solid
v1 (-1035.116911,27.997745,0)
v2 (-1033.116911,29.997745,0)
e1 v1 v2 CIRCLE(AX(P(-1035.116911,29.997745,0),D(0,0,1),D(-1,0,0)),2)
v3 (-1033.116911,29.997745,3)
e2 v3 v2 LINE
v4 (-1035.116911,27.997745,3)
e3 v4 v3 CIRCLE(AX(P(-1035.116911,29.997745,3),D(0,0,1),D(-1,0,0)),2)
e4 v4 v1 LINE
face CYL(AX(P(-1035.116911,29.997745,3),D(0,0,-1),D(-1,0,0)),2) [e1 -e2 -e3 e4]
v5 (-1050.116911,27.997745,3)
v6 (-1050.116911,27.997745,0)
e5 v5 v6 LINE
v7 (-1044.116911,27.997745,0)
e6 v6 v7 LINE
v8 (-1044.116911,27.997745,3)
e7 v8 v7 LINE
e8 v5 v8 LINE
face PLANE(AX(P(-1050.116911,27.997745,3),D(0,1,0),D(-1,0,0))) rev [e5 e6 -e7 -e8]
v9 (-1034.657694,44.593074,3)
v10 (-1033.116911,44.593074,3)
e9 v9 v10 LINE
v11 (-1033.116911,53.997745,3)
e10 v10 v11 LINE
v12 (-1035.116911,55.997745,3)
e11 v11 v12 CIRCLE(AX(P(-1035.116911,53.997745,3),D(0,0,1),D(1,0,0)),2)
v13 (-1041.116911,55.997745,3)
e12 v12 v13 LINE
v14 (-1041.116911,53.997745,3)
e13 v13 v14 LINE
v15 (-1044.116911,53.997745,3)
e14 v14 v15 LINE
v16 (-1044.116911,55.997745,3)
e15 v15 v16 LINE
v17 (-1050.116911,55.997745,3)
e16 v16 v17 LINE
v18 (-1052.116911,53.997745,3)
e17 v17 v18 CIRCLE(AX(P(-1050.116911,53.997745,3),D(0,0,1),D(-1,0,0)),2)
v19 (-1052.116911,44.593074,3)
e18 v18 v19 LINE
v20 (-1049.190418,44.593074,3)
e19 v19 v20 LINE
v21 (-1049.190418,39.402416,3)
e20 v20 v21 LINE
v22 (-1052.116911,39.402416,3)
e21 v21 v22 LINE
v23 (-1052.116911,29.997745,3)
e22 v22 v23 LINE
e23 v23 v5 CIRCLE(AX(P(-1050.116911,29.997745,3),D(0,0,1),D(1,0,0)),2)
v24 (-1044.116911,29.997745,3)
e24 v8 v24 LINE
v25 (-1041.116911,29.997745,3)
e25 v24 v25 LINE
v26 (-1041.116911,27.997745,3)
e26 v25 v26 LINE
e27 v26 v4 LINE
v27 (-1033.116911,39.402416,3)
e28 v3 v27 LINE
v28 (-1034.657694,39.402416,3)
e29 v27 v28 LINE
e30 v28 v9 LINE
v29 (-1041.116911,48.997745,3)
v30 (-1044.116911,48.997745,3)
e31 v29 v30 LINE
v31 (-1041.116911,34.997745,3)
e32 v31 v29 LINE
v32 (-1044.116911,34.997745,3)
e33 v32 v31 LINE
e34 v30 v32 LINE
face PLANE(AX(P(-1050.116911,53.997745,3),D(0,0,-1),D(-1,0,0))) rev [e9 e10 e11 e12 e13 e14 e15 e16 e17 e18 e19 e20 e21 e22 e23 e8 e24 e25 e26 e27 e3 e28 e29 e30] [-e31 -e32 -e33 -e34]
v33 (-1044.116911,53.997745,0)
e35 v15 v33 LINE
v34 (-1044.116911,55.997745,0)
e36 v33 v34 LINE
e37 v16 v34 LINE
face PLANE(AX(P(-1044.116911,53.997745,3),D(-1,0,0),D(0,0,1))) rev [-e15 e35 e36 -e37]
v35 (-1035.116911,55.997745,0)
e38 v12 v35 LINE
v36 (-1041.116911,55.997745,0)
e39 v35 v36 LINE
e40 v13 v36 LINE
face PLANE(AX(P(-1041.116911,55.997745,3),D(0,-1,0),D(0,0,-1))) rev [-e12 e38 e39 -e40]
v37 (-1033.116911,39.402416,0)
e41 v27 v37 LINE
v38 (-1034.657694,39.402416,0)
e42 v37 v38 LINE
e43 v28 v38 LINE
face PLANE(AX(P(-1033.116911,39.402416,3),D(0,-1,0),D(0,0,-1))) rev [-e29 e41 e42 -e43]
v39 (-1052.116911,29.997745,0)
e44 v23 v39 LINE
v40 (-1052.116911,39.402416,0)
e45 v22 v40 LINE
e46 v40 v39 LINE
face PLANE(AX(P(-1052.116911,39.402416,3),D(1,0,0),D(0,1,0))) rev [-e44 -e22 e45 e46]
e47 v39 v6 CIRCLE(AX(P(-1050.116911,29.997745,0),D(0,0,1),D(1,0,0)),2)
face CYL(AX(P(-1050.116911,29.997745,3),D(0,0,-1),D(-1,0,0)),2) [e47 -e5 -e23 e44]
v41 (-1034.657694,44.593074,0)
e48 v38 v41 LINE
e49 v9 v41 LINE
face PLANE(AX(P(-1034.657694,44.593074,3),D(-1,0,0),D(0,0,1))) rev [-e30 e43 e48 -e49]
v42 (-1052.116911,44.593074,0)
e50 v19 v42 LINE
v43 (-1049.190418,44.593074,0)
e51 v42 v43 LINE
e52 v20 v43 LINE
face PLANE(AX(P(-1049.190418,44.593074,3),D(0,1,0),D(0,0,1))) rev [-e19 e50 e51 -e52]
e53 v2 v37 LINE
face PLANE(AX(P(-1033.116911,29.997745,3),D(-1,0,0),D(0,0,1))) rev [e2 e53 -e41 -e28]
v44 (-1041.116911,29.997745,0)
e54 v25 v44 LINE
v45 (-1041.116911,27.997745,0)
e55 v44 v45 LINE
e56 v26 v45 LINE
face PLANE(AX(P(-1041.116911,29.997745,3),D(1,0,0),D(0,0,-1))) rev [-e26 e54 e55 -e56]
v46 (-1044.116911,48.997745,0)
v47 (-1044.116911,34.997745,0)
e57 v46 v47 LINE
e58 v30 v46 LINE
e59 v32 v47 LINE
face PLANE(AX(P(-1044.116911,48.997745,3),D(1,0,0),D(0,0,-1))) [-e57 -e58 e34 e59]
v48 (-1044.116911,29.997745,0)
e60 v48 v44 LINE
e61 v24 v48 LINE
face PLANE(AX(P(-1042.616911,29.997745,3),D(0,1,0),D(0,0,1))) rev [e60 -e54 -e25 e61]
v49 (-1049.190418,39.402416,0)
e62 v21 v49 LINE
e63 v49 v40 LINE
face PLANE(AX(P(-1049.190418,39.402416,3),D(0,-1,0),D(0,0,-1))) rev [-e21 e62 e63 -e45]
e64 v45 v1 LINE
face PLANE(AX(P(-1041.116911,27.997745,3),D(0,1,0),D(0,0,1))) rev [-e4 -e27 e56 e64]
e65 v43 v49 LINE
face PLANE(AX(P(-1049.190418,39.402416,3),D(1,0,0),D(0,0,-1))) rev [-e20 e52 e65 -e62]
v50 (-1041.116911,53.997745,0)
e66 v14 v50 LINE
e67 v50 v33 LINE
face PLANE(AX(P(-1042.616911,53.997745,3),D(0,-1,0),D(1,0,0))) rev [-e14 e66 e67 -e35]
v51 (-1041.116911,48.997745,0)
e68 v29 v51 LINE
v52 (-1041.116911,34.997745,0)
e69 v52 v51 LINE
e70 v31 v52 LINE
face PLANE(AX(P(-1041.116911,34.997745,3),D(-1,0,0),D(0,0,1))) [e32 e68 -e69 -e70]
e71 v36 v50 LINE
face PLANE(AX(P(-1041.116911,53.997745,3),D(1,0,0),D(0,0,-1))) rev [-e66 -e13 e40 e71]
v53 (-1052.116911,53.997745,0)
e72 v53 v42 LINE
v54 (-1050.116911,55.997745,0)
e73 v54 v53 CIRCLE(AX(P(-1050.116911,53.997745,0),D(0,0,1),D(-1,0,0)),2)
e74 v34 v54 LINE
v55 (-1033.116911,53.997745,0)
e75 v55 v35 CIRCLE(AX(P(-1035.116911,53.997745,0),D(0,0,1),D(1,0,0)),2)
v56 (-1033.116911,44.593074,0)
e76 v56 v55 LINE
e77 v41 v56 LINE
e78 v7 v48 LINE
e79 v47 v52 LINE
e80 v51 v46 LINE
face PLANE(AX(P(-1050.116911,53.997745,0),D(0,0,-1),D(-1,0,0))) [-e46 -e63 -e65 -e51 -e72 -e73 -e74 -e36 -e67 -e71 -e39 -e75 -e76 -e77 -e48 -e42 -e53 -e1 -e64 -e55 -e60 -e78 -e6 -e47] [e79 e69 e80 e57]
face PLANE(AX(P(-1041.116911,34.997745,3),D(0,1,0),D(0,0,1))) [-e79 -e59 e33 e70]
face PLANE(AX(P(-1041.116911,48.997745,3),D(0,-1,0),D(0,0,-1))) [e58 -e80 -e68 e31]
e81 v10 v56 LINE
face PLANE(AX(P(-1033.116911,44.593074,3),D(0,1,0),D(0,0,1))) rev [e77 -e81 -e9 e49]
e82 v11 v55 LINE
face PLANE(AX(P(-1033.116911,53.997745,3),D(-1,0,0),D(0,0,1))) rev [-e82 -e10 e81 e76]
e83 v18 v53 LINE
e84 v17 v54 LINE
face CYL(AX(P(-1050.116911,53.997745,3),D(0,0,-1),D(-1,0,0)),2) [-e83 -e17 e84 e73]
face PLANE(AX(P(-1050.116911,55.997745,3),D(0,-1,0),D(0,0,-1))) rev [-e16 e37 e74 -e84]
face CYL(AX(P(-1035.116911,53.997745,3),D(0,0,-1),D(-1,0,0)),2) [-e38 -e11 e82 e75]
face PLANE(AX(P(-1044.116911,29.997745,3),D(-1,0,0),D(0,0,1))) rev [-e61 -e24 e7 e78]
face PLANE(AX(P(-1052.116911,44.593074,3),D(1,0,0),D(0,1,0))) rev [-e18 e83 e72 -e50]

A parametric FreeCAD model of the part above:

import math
import FreeCAD as App
import Part
import Sketcher

doc = App.newDocument("Part")
params = doc.addObject("Spreadsheet::Sheet", "Params")
for row, (alias, value) in enumerate([
    ("sketch1_radius", "2 mm"),
    ("sketch1_width", "6 mm"),
    ("sketch1_width2", "3 mm"),
    ("sketch1_height", "14 mm"),
    ("pad1_length", "3 mm"),
], start=1):
    params.set(f"A{row}", alias)
    params.set(f"B{row}", "=" + value)
    params.setAlias(f"B{row}", alias)

body = doc.addObject("PartDesign::Body", "Body")

sketch1 = doc.addObject("Sketcher::SketchObject", "Sketch")
body.addObject(sketch1)
sketch1.AttachmentSupport = (doc.XY_Plane, [""])
sketch1.MapMode = "FlatFace"
sketch1.addGeometry([
    Part.LineSegment(App.Vector(-1033.1, 44.6, 0), App.Vector(-1033.1, 54, 0)),
    Part.ArcOfCircle(Part.Circle(App.Vector(-1035.1, 54, 0), App.Vector(0, 0, 1), 2), math.radians(0), math.radians(90)),
    Part.LineSegment(App.Vector(-1035.1, 56, 0), App.Vector(-1041.1, 56, 0)),
    Part.LineSegment(App.Vector(-1041.1, 56, 0), App.Vector(-1041.1, 54, 0)),
    Part.LineSegment(App.Vector(-1041.1, 54, 0), App.Vector(-1044.1, 54, 0)),
    Part.LineSegment(App.Vector(-1044.1, 54, 0), App.Vector(-1044.1, 56, 0)),
    Part.LineSegment(App.Vector(-1044.1, 56, 0), App.Vector(-1050.1, 56, 0)),
    Part.ArcOfCircle(Part.Circle(App.Vector(-1050.1, 54, 0), App.Vector(0, 0, 1), 2), math.radians(90), math.radians(180)),
    Part.LineSegment(App.Vector(-1052.1, 54, 0), App.Vector(-1052.1, 44.6, 0)),
    Part.LineSegment(App.Vector(-1052.1, 44.6, 0), App.Vector(-1049.2, 44.6, 0)),
    Part.LineSegment(App.Vector(-1049.2, 44.6, 0), App.Vector(-1049.2, 39.4, 0)),
    Part.LineSegment(App.Vector(-1049.2, 39.4, 0), App.Vector(-1052.1, 39.4, 0)),
    Part.LineSegment(App.Vector(-1052.1, 39.4, 0), App.Vector(-1052.1, 30, 0)),
    Part.ArcOfCircle(Part.Circle(App.Vector(-1050.1, 30, 0), App.Vector(0, 0, 1), 2), math.radians(180), math.radians(270)),
    Part.LineSegment(App.Vector(-1050.1, 28, 0), App.Vector(-1044.1, 28, 0)),
    Part.LineSegment(App.Vector(-1044.1, 28, 0), App.Vector(-1044.1, 30, 0)),
    Part.LineSegment(App.Vector(-1044.1, 30, 0), App.Vector(-1041.1, 30, 0)),
    Part.LineSegment(App.Vector(-1041.1, 30, 0), App.Vector(-1041.1, 28, 0)),
    Part.LineSegment(App.Vector(-1041.1, 28, 0), App.Vector(-1035.1, 28, 0)),
    Part.ArcOfCircle(Part.Circle(App.Vector(-1035.1, 30, 0), App.Vector(0, 0, 1), 2), math.radians(-90), math.radians(0)),
    Part.LineSegment(App.Vector(-1033.1, 30, 0), App.Vector(-1033.1, 39.4, 0)),
    Part.LineSegment(App.Vector(-1033.1, 39.4, 0), App.Vector(-1034.7, 39.4, 0)),
    Part.LineSegment(App.Vector(-1034.7, 39.4, 0), App.Vector(-1034.7, 44.6, 0)),
    Part.LineSegment(App.Vector(-1034.7, 44.6, 0), App.Vector(-1033.1, 44.6, 0)),
    Part.LineSegment(App.Vector(-1044.1, 35, 0), App.Vector(-1044.1, 49, 0)),
    Part.LineSegment(App.Vector(-1044.1, 49, 0), App.Vector(-1041.1, 49, 0)),
    Part.LineSegment(App.Vector(-1041.1, 49, 0), App.Vector(-1041.1, 35, 0)),
    Part.LineSegment(App.Vector(-1041.1, 35, 0), App.Vector(-1044.1, 35, 0)),
], False)
sketch1.addConstraint([
    Sketcher.Constraint("Tangent", 0, 2, 1, 1),
    Sketcher.Constraint("Tangent", 1, 2, 2, 1),
    Sketcher.Constraint("Coincident", 2, 2, 3, 1),
    Sketcher.Constraint("Coincident", 3, 2, 4, 1),
    Sketcher.Constraint("Coincident", 4, 2, 5, 1),
    Sketcher.Constraint("Coincident", 5, 2, 6, 1),
    Sketcher.Constraint("Tangent", 6, 2, 7, 1),
    Sketcher.Constraint("Tangent", 7, 2, 8, 1),
    Sketcher.Constraint("Coincident", 8, 2, 9, 1),
    Sketcher.Constraint("Coincident", 9, 2, 10, 1),
    Sketcher.Constraint("Coincident", 10, 2, 11, 1),
    Sketcher.Constraint("Coincident", 11, 2, 12, 1),
    Sketcher.Constraint("Tangent", 12, 2, 13, 1),
    Sketcher.Constraint("Tangent", 13, 2, 14, 1),
    Sketcher.Constraint("Coincident", 14, 2, 15, 1),
    Sketcher.Constraint("Coincident", 15, 2, 16, 1),
    Sketcher.Constraint("Coincident", 16, 2, 17, 1),
    Sketcher.Constraint("Coincident", 17, 2, 18, 1),
    Sketcher.Constraint("Tangent", 18, 2, 19, 1),
    Sketcher.Constraint("Tangent", 19, 2, 20, 1),
    Sketcher.Constraint("Coincident", 20, 2, 21, 1),
    Sketcher.Constraint("Coincident", 21, 2, 22, 1),
    Sketcher.Constraint("Coincident", 22, 2, 23, 1),
    Sketcher.Constraint("Coincident", 23, 2, 0, 1),
    Sketcher.Constraint("Coincident", 24, 2, 25, 1),
    Sketcher.Constraint("Coincident", 25, 2, 26, 1),
    Sketcher.Constraint("Coincident", 26, 2, 27, 1),
    Sketcher.Constraint("Coincident", 27, 2, 24, 1),
    Sketcher.Constraint("Vertical", 0),
    Sketcher.Constraint("Horizontal", 2),
    Sketcher.Constraint("Vertical", 3),
    Sketcher.Constraint("Horizontal", 4),
    Sketcher.Constraint("Vertical", 5),
    Sketcher.Constraint("Horizontal", 6),
    Sketcher.Constraint("Vertical", 8),
    Sketcher.Constraint("Horizontal", 9),
    Sketcher.Constraint("Vertical", 10),
    Sketcher.Constraint("Horizontal", 11),
    Sketcher.Constraint("Vertical", 12),
    Sketcher.Constraint("Horizontal", 14),
    Sketcher.Constraint("Vertical", 15),
    Sketcher.Constraint("Horizontal", 16),
    Sketcher.Constraint("Vertical", 17),
    Sketcher.Constraint("Horizontal", 18),
    Sketcher.Constraint("Vertical", 20),
    Sketcher.Constraint("Horizontal", 21),
    Sketcher.Constraint("Vertical", 22),
    Sketcher.Constraint("Horizontal", 23),
    Sketcher.Constraint("Vertical", 24),
    Sketcher.Constraint("Horizontal", 25),
    Sketcher.Constraint("Vertical", 26),
    Sketcher.Constraint("Horizontal", 27),
    Sketcher.Constraint("Equal", 1, 7),
    Sketcher.Constraint("Equal", 7, 13),
    Sketcher.Constraint("Equal", 13, 19),
    Sketcher.Constraint("Horizontal", 1, 3, 7, 3),
    Sketcher.Constraint("Horizontal", 13, 3, 19, 3),
    Sketcher.Constraint("Horizontal", 0, 2, 3, 2),
    Sketcher.Constraint("Horizontal", 12, 2, 15, 2),
    Sketcher.Constraint("Horizontal", 11, 2, 20, 2),
    Sketcher.Constraint("Horizontal", 9, 2, 22, 2),
    Sketcher.Constraint("Vertical", 7, 3, 13, 3),
    Sketcher.Constraint("Vertical", 1, 3, 19, 3),
    Sketcher.Constraint("Vertical", 5, 2, 14, 2),
    Sketcher.Constraint("Vertical", 3, 2, 16, 2),
    Sketcher.Constraint("Vertical", 15, 2, 24, 2),
    Sketcher.Constraint("Vertical", 17, 2, 25, 2),
    Sketcher.Constraint("Equal", 2, 6),
    Sketcher.Constraint("Equal", 8, 12),
    Sketcher.Constraint("Radius", 1, 2.0),
    Sketcher.Constraint("DistanceX", 2, 2, 2, 1, 6.0),
    Sketcher.Constraint("DistanceX", 4, 2, 4, 1, 3.0),
    Sketcher.Constraint("DistanceY", 24, 1, 24, 2, 14.0),
    Sketcher.Constraint("DistanceY", 13, 3, 7, 3, 24.0),
    Sketcher.Constraint("DistanceY", 24, 2, 4, 2, 5.0),
    Sketcher.Constraint("DistanceY", 0, 1, 0, 2, 9.404671),
    Sketcher.Constraint("DistanceX", 9, 1, 9, 2, 2.926492),
    Sketcher.Constraint("DistanceX", 21, 2, 21, 1, 1.540783),
    Sketcher.Constraint("DistanceX", 1, 3, -1, 1, 1035.116911),
    Sketcher.Constraint("DistanceY", -1, 1, 1, 3, 53.997745),
])
sketch1.setExpression("Constraints[69]", "Params.sketch1_radius")
sketch1.setExpression("Constraints[70]", "Params.sketch1_width")
sketch1.setExpression("Constraints[71]", "Params.sketch1_width2")
sketch1.setExpression("Constraints[72]", "Params.sketch1_height")
pad1 = doc.addObject("PartDesign::Pad", "Pad")
body.addObject(pad1)
pad1.Profile = sketch1
pad1.setExpression("Length", "Params.pad1_length")

doc.recompute()
